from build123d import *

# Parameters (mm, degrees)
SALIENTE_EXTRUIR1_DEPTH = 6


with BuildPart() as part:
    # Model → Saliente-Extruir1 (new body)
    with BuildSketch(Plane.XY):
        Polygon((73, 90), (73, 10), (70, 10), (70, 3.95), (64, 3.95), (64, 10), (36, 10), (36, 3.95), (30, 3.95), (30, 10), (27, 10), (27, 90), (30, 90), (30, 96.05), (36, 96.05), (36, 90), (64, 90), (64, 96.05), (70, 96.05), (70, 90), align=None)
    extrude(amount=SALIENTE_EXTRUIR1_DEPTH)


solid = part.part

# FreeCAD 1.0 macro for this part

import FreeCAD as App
import Part
import Sketcher
Q = App.Units.Quantity

doc = App.newDocument("Part")
body = doc.addObject("PartDesign::Body", "Body")

# Sketch on XY plane
sketch1 = body.newObject("Sketcher::SketchObject", "Sketch")
sketch1.AttachmentSupport = (doc.getObject("XY_Plane"), [""])
sketch1.MapMode = "FlatFace"
sketch1.addGeometry(Part.LineSegment(App.Vector(73, 10, 0), App.Vector(73, 90, 0)), False)
sketch1.addGeometry(Part.LineSegment(App.Vector(73, 90, 0), App.Vector(70, 90, 0)), False)
sketch1.addGeometry(Part.LineSegment(App.Vector(70, 90, 0), App.Vector(70, 96.05, 0)), False)
sketch1.addGeometry(Part.LineSegment(App.Vector(70, 96.05, 0), App.Vector(64, 96.05, 0)), False)
sketch1.addGeometry(Part.LineSegment(App.Vector(64, 96.05, 0), App.Vector(64, 90, 0)), False)
sketch1.addGeometry(Part.LineSegment(App.Vector(64, 90, 0), App.Vector(36, 90, 0)), False)
sketch1.addGeometry(Part.LineSegment(App.Vector(36, 90, 0), App.Vector(36, 96.05, 0)), False)
sketch1.addGeometry(Part.LineSegment(App.Vector(36, 96.05, 0), App.Vector(30, 96.05, 0)), False)
sketch1.addGeometry(Part.LineSegment(App.Vector(30, 96.05, 0), App.Vector(30, 90, 0)), False)
sketch1.addGeometry(Part.LineSegment(App.Vector(30, 90, 0), App.Vector(27, 90, 0)), False)
sketch1.addGeometry(Part.LineSegment(App.Vector(27, 90, 0), App.Vector(27, 10, 0)), False)
sketch1.addGeometry(Part.LineSegment(App.Vector(27, 10, 0), App.Vector(30, 10, 0)), False)
sketch1.addGeometry(Part.LineSegment(App.Vector(30, 10, 0), App.Vector(30, 3.95, 0)), False)
sketch1.addGeometry(Part.LineSegment(App.Vector(30, 3.95, 0), App.Vector(36, 3.95, 0)), False)
sketch1.addGeometry(Part.LineSegment(App.Vector(36, 3.95, 0), App.Vector(36, 10, 0)), False)
sketch1.addGeometry(Part.LineSegment(App.Vector(36, 10, 0), App.Vector(64, 10, 0)), False)
sketch1.addGeometry(Part.LineSegment(App.Vector(64, 10, 0), App.Vector(64, 3.95, 0)), False)
sketch1.addGeometry(Part.LineSegment(App.Vector(64, 3.95, 0), App.Vector(70, 3.95, 0)), False)
sketch1.addGeometry(Part.LineSegment(App.Vector(70, 3.95, 0), App.Vector(70, 10, 0)), False)
sketch1.addGeometry(Part.LineSegment(App.Vector(70, 10, 0), App.Vector(73, 10, 0)), False)
sketch1.addConstraint(Sketcher.Constraint("Coincident", 0, 2, 1, 1))
sketch1.addConstraint(Sketcher.Constraint("Coincident", 1, 2, 2, 1))
sketch1.addConstraint(Sketcher.Constraint("Coincident", 2, 2, 3, 1))
sketch1.addConstraint(Sketcher.Constraint("Coincident", 3, 2, 4, 1))
sketch1.addConstraint(Sketcher.Constraint("Coincident", 4, 2, 5, 1))
sketch1.addConstraint(Sketcher.Constraint("Coincident", 5, 2, 6, 1))
sketch1.addConstraint(Sketcher.Constraint("Coincident", 6, 2, 7, 1))
sketch1.addConstraint(Sketcher.Constraint("Coincident", 7, 2, 8, 1))
sketch1.addConstraint(Sketcher.Constraint("Coincident", 8, 2, 9, 1))
sketch1.addConstraint(Sketcher.Constraint("Coincident", 9, 2, 10, 1))
sketch1.addConstraint(Sketcher.Constraint("Coincident", 10, 2, 11, 1))
sketch1.addConstraint(Sketcher.Constraint("Coincident", 11, 2, 12, 1))
sketch1.addConstraint(Sketcher.Constraint("Coincident", 12, 2, 13, 1))
sketch1.addConstraint(Sketcher.Constraint("Coincident", 13, 2, 14, 1))
sketch1.addConstraint(Sketcher.Constraint("Coincident", 14, 2, 15, 1))
sketch1.addConstraint(Sketcher.Constraint("Coincident", 15, 2, 16, 1))
sketch1.addConstraint(Sketcher.Constraint("Coincident", 16, 2, 17, 1))
sketch1.addConstraint(Sketcher.Constraint("Coincident", 17, 2, 18, 1))
sketch1.addConstraint(Sketcher.Constraint("Coincident", 18, 2, 19, 1))
sketch1.addConstraint(Sketcher.Constraint("Coincident", 19, 2, 0, 1))
sketch1.addConstraint(Sketcher.Constraint("Vertical", 0))
sketch1.addConstraint(Sketcher.Constraint("Horizontal", 1))
sketch1.addConstraint(Sketcher.Constraint("Vertical", 2))
sketch1.addConstraint(Sketcher.Constraint("Horizontal", 3))
sketch1.addConstraint(Sketcher.Constraint("Vertical", 4))
sketch1.addConstraint(Sketcher.Constraint("Horizontal", 5))
sketch1.addConstraint(Sketcher.Constraint("Vertical", 6))
sketch1.addConstraint(Sketcher.Constraint("Horizontal", 7))
sketch1.addConstraint(Sketcher.Constraint("Vertical", 8))
sketch1.addConstraint(Sketcher.Constraint("Horizontal", 9))
sketch1.addConstraint(Sketcher.Constraint("Vertical", 10))
sketch1.addConstraint(Sketcher.Constraint("Horizontal", 11))
sketch1.addConstraint(Sketcher.Constraint("Vertical", 12))
sketch1.addConstraint(Sketcher.Constraint("Horizontal", 13))
sketch1.addConstraint(Sketcher.Constraint("Vertical", 14))
sketch1.addConstraint(Sketcher.Constraint("Horizontal", 15))
sketch1.addConstraint(Sketcher.Constraint("Vertical", 16))
sketch1.addConstraint(Sketcher.Constraint("Horizontal", 17))
sketch1.addConstraint(Sketcher.Constraint("Vertical", 18))
sketch1.addConstraint(Sketcher.Constraint("Horizontal", 19))
sketch1.addConstraint(Sketcher.Constraint("Horizontal", 1, 2, 4, 2))
sketch1.addConstraint(Sketcher.Constraint("Horizontal", 3, 2, 6, 2))
sketch1.addConstraint(Sketcher.Constraint("Horizontal", 5, 2, 8, 2))
sketch1.addConstraint(Sketcher.Constraint("Horizontal", 11, 2, 14, 2))
sketch1.addConstraint(Sketcher.Constraint("Horizontal", 13, 2, 16, 2))
sketch1.addConstraint(Sketcher.Constraint("Horizontal", 15, 2, 18, 2))
sketch1.addConstraint(Sketcher.Constraint("Vertical", 8, 2, 11, 2))
sketch1.addConstraint(Sketcher.Constraint("Vertical", 6, 2, 13, 2))
sketch1.addConstraint(Sketcher.Constraint("Vertical", 4, 2, 15, 2))
sketch1.addConstraint(Sketcher.Constraint("Vertical", 2, 2, 17, 2))
sketch1.addConstraint(Sketcher.Constraint("Equal", 3, 7))
sketch1.addConstraint(Sketcher.Constraint("Equal", 1, 9))
sketch1.addConstraint(Sketcher.Constraint("Equal", 8, 12))
sketch1.addConstraint(Sketcher.Constraint("DistanceX", 1, 2, 1, 1, Q("3 mm")))
sketch1.addConstraint(Sketcher.Constraint("DistanceX", 3, 2, 3, 1, Q("6 mm")))
sketch1.addConstraint(Sketcher.Constraint("DistanceX", 5, 2, 5, 1, Q("28 mm")))
sketch1.addConstraint(Sketcher.Constraint("DistanceY", 0, 1, 0, 2, Q("80 mm")))
sketch1.addConstraint(Sketcher.Constraint("DistanceX", -1, 1, 0, 2, Q("73 mm")))
sketch1.addConstraint(Sketcher.Constraint("DistanceY", -1, 1, 0, 2, Q("90 mm")))
sketch1.addConstraint(Sketcher.Constraint("DistanceY", 2, 1, 2, 2, Q("6.05 mm")))
pad1 = body.newObject("PartDesign::Pad", "Pad")
pad1.Profile = sketch1
pad1.Length = 6

doc.recompute()
